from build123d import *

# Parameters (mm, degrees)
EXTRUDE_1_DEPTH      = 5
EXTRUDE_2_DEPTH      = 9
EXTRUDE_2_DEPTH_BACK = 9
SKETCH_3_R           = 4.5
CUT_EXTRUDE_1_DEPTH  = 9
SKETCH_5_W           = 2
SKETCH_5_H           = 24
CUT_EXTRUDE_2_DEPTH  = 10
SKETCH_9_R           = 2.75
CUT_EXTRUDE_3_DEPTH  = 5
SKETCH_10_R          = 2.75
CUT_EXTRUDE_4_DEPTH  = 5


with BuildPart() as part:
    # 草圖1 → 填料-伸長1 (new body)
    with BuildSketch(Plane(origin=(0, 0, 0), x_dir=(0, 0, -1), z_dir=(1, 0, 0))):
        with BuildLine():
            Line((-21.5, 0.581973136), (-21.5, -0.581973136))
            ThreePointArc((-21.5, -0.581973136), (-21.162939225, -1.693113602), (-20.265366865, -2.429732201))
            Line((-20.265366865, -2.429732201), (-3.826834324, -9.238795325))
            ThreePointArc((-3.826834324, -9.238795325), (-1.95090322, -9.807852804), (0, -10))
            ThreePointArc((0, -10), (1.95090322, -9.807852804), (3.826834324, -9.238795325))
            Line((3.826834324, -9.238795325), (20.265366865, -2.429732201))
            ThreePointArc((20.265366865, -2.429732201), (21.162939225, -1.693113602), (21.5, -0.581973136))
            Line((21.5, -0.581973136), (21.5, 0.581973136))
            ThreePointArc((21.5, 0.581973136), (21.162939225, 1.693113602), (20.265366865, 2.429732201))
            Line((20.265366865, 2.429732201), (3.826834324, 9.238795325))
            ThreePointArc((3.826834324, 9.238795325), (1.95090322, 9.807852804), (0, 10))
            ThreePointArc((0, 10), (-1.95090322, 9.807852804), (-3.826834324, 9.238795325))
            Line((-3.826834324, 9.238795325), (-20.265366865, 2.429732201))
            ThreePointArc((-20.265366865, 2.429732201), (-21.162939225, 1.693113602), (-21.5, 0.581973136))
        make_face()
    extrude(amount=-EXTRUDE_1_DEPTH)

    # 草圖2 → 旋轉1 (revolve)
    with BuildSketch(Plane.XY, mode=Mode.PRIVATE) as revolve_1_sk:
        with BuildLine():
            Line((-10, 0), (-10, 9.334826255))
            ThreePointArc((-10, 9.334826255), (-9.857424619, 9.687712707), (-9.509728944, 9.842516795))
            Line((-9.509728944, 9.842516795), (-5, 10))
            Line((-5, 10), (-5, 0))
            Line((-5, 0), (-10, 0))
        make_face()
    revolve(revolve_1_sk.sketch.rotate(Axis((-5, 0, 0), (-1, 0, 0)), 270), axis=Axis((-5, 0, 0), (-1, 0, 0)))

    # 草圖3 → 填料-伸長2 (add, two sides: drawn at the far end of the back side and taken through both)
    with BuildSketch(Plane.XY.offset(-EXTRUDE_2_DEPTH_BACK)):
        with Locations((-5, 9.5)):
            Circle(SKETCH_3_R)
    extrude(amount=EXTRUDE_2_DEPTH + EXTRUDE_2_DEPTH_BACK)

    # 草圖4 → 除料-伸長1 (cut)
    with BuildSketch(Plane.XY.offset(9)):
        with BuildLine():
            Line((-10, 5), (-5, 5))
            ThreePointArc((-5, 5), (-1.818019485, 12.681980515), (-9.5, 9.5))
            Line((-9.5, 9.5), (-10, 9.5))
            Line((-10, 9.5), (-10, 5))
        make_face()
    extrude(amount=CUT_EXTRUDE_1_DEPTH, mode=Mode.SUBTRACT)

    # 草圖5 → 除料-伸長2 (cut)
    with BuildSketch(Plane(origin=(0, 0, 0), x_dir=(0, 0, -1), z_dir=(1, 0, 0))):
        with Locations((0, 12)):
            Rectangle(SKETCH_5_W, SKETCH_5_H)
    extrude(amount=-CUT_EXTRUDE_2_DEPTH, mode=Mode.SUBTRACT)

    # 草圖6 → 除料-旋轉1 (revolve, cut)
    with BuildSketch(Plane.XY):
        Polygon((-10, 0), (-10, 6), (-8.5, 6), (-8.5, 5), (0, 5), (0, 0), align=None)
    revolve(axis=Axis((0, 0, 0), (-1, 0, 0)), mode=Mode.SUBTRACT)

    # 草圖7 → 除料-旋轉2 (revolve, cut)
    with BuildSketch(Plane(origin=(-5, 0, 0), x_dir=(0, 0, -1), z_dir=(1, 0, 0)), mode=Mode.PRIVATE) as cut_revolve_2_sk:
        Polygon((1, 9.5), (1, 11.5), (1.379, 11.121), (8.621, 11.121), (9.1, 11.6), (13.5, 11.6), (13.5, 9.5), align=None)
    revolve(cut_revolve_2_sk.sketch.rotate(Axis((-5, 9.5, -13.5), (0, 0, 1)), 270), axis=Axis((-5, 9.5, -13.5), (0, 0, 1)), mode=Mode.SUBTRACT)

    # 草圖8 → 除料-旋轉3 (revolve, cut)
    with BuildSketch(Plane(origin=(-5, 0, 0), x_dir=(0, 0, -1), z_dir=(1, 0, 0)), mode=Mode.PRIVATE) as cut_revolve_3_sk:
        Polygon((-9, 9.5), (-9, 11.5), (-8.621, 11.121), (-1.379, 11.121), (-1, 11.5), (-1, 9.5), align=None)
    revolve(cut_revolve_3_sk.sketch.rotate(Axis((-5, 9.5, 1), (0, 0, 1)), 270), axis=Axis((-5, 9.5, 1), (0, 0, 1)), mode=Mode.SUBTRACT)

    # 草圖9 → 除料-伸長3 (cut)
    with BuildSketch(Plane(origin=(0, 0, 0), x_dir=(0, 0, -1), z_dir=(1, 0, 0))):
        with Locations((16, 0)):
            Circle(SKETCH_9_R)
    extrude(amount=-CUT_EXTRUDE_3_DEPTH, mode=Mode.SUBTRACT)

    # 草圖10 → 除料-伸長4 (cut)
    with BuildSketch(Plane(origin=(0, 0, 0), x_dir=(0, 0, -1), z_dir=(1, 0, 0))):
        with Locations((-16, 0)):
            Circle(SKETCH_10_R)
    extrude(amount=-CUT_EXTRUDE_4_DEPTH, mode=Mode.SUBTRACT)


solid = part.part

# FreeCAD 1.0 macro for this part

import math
import FreeCAD as App
import Part
import Sketcher
from FreeCAD import Vector
Q = App.Units.Quantity


def add_polygon(sketch, points):
    """Adds a closed chain of lines whose ends are joined by coincident constraints."""
    first, n = sketch.GeometryCount, len(points)
    for a, b in zip(points, points[1:] + points[:1]):
        sketch.addGeometry(Part.LineSegment(App.Vector(*a, 0), App.Vector(*b, 0)), False)
    for i in range(n):
        sketch.addConstraint(Sketcher.Constraint("Coincident", first + i, 2, first + (i + 1) % n, 1))

doc = App.newDocument("Part")
body = doc.addObject("PartDesign::Body", "Body")

# Sketch on YZ plane
sketch1 = body.newObject("Sketcher::SketchObject", "Sketch")
sketch1.AttachmentSupport = (doc.getObject("YZ_Plane"), [""])
sketch1.MapMode = "FlatFace"
sketch1.addGeometry(Part.LineSegment(Vector(0.6, 21.5, 0), Vector(-0.6, 21.5, 0)), False)
sketch1.addGeometry(Part.ArcOfCircle(Part.Circle(Vector(-0.6, 19.5, 0), Vector(0, 0, 1), 2), math.radians(90), math.radians(158)), False)
sketch1.addGeometry(Part.LineSegment(Vector(-2.4, 20.3, 0), Vector(-9.2, 3.8, 0)), False)
sketch1.addGeometry(Part.ArcOfCircle(Part.Circle(Vector(0, 0, 0), Vector(0, 0, 1), 10), math.radians(158), math.radians(180)), False)
sketch1.addGeometry(Part.ArcOfCircle(Part.Circle(Vector(0, 0, 0), Vector(0, 0, 1), 10), math.radians(-180), math.radians(-158)), False)
sketch1.addGeometry(Part.LineSegment(Vector(-9.2, -3.8, 0), Vector(-2.4, -20.3, 0)), False)
sketch1.addGeometry(Part.ArcOfCircle(Part.Circle(Vector(-0.6, -19.5, 0), Vector(0, 0, 1), 2), math.radians(-158), math.radians(-90)), False)
sketch1.addGeometry(Part.LineSegment(Vector(-0.6, -21.5, 0), Vector(0.6, -21.5, 0)), False)
sketch1.addGeometry(Part.ArcOfCircle(Part.Circle(Vector(0.6, -19.5, 0), Vector(0, 0, 1), 2), math.radians(-90), math.radians(-22)), False)
sketch1.addGeometry(Part.LineSegment(Vector(2.4, -20.3, 0), Vector(9.2, -3.8, 0)), False)
sketch1.addGeometry(Part.ArcOfCircle(Part.Circle(Vector(0, 0, 0), Vector(0, 0, 1), 10), math.radians(-22), math.radians(0)), False)
sketch1.addGeometry(Part.ArcOfCircle(Part.Circle(Vector(0, 0, 0), Vector(0, 0, 1), 10), math.radians(0), math.radians(22)), False)
sketch1.addGeometry(Part.LineSegment(Vector(9.2, 3.8, 0), Vector(2.4, 20.3, 0)), False)
sketch1.addGeometry(Part.ArcOfCircle(Part.Circle(Vector(0.6, 19.5, 0), Vector(0, 0, 1), 2), math.radians(22), math.radians(90)), False)
sketch1.addConstraint(Sketcher.Constraint("Tangent", 0, 2, 1, 1))
sketch1.addConstraint(Sketcher.Constraint("Tangent", 1, 2, 2, 1))
sketch1.addConstraint(Sketcher.Constraint("Tangent", 2, 2, 3, 1))
sketch1.addConstraint(Sketcher.Constraint("Tangent", 3, 2, 4, 1))
sketch1.addConstraint(Sketcher.Constraint("Tangent", 4, 2, 5, 1))
sketch1.addConstraint(Sketcher.Constraint("Tangent", 5, 2, 6, 1))
sketch1.addConstraint(Sketcher.Constraint("Tangent", 6, 2, 7, 1))
sketch1.addConstraint(Sketcher.Constraint("Tangent", 7, 2, 8, 1))
sketch1.addConstraint(Sketcher.Constraint("Tangent", 8, 2, 9, 1))
sketch1.addConstraint(Sketcher.Constraint("Tangent", 9, 2, 10, 1))
sketch1.addConstraint(Sketcher.Constraint("Tangent", 10, 2, 11, 1))
sketch1.addConstraint(Sketcher.Constraint("Tangent", 11, 2, 12, 1))
sketch1.addConstraint(Sketcher.Constraint("Tangent", 12, 2, 13, 1))
sketch1.addConstraint(Sketcher.Constraint("Tangent", 13, 2, 0, 1))
sketch1.addConstraint(Sketcher.Constraint("Horizontal", 0))
sketch1.addConstraint(Sketcher.Constraint("Horizontal", 7))
sketch1.addConstraint(Sketcher.Constraint("Coincident", 3, 3, -1, 1))
sketch1.addConstraint(Sketcher.Constraint("Coincident", 10, 3, -1, 1))
sketch1.addConstraint(Sketcher.Constraint("Equal", 3, 4))
sketch1.addConstraint(Sketcher.Constraint("Equal", 1, 6))
sketch1.addConstraint(Sketcher.Constraint("Equal", 6, 8))
sketch1.addConstraint(Sketcher.Constraint("Equal", 4, 10))
sketch1.addConstraint(Sketcher.Constraint("Equal", 10, 11))
sketch1.addConstraint(Sketcher.Constraint("Equal", 8, 13))
sketch1.addConstraint(Sketcher.Constraint("Symmetric", 1, 3, 8, 3, -1, 1))
sketch1.addConstraint(Sketcher.Constraint("PointOnObject", 3, 2, -1))
sketch1.addConstraint(Sketcher.Constraint("PointOnObject", 10, 2, -1))
sketch1.addConstraint(Sketcher.Constraint("Parallel", 5, 12))
sketch1.addConstraint(Sketcher.Constraint("Horizontal", 5, 2, 8, 2))
sketch1.addConstraint(Sketcher.Constraint("Radius", 1, 2.0))
sketch1.addConstraint(Sketcher.Constraint("Radius", 3, 10.0))
sketch1.addConstraint(Sketcher.Constraint("Angle", 2, Q("-112.5 deg")))
sketch1.addConstraint(Sketcher.Constraint("DistanceY", 6, 3, 1, 3, 39.0))
pad1 = body.newObject("PartDesign::Pad", "Pad")
pad1.Profile = sketch1
pad1.Length = 5
pad1.Reversed = True

# Sketch on XY plane
sketch2 = body.newObject("Sketcher::SketchObject", "Sketch001")
sketch2.AttachmentSupport = (doc.getObject("XY_Plane"), [""])
sketch2.MapMode = "FlatFace"
sketch2.addGeometry(Part.LineSegment(Vector(-10, 9.3, 0), Vector(-10, 0, 0)), False)
sketch2.addGeometry(Part.LineSegment(Vector(-10, 0, 0), Vector(-5, 0, 0)), False)
sketch2.addGeometry(Part.LineSegment(Vector(-5, 0, 0), Vector(-5, 10, 0)), False)
sketch2.addGeometry(Part.LineSegment(Vector(-5, 10, 0), Vector(-9.5, 9.8, 0)), False)
sketch2.addGeometry(Part.ArcOfCircle(Part.Circle(Vector(-9.5, 9.3, 0), Vector(0, 0, 1), 0.5), math.radians(92), math.radians(180)), False)
sketch2.addConstraint(Sketcher.Constraint("Coincident", 0, 2, 1, 1))
sketch2.addConstraint(Sketcher.Constraint("Coincident", 1, 2, 2, 1))
sketch2.addConstraint(Sketcher.Constraint("Coincident", 2, 2, 3, 1))
sketch2.addConstraint(Sketcher.Constraint("Tangent", 3, 2, 4, 1))
sketch2.addConstraint(Sketcher.Constraint("Tangent", 4, 2, 0, 1))
sketch2.addConstraint(Sketcher.Constraint("Vertical", 0))
sketch2.addConstraint(Sketcher.Constraint("Horizontal", 1))
sketch2.addConstraint(Sketcher.Constraint("Vertical", 2))
sketch2.addConstraint(Sketcher.Constraint("PointOnObject", 0, 2, -1))
sketch2.addConstraint(Sketcher.Constraint("DistanceX", 1, 1, 1, 2, 5.0))
sketch2.addConstraint(Sketcher.Constraint("DistanceY", 2, 1, 2, 2, 10.0))
sketch2.addConstraint(Sketcher.Constraint("Angle", 3, Q("-178 deg")))
sketch2.addConstraint(Sketcher.Constraint("DistanceX", 0, 2, -1, 1, 10.0))
sketch2.addConstraint(Sketcher.Constraint("Radius", 4, 0.508))
revolution = body.newObject("PartDesign::Revolution", "Revolution")
revolution.Profile = sketch2
revolution.ReferenceAxis = (sketch2, ["H_Axis"])
revolution.Angle = 360

# Sketch on XY plane
sketch3 = body.newObject("Sketcher::SketchObject", "Sketch002")
sketch3.AttachmentSupport = (doc.getObject("XY_Plane"), [""])
sketch3.MapMode = "FlatFace"
sketch3.addGeometry(Part.Circle(Vector(-5, 9.5, 0), Vector(0, 0, 1), 4.5), False)
sketch3.addConstraint(Sketcher.Constraint("Diameter", 0, 9.0))
sketch3.addConstraint(Sketcher.Constraint("DistanceX", 0, 3, -1, 1, 5.0))
sketch3.addConstraint(Sketcher.Constraint("DistanceY", -1, 1, 0, 3, 9.5))
pad2 = body.newObject("PartDesign::Pad", "Pad001")
pad2.Profile = sketch3
pad2.Type = "TwoLengths"
pad2.Length = 9
pad2.Length2 = 9

# Sketch on XY plane
sketch4 = body.newObject("Sketcher::SketchObject", "Sketch003")
sketch4.AttachmentSupport = (doc.getObject("XY_Plane"), [""])
sketch4.MapMode = "FlatFace"
sketch4.AttachmentOffset = App.Placement(Vector(0, 0, 9), App.Rotation())
sketch4.addGeometry(Part.LineSegment(Vector(-10, 5, 0), Vector(-5, 5, 0)), False)
sketch4.addGeometry(Part.ArcOfCircle(Part.Circle(Vector(-5, 9.5, 0), Vector(0, 0, 1), 4.5), math.radians(-90), math.radians(180)), False)
sketch4.addGeometry(Part.LineSegment(Vector(-9.5, 9.5, 0), Vector(-10, 9.5, 0)), False)
sketch4.addGeometry(Part.LineSegment(Vector(-10, 9.5, 0), Vector(-10, 5, 0)), False)
sketch4.addConstraint(Sketcher.Constraint("Tangent", 0, 2, 1, 1))
sketch4.addConstraint(Sketcher.Constraint("Coincident", 1, 2, 2, 1))
sketch4.addConstraint(Sketcher.Constraint("Coincident", 2, 2, 3, 1))
sketch4.addConstraint(Sketcher.Constraint("Coincident", 3, 2, 0, 1))
sketch4.addConstraint(Sketcher.Constraint("Horizontal", 0))
sketch4.addConstraint(Sketcher.Constraint("Horizontal", 2))
sketch4.addConstraint(Sketcher.Constraint("Vertical", 3))
sketch4.addConstraint(Sketcher.Constraint("Radius", 1, 4.5))
sketch4.addConstraint(Sketcher.Constraint("DistanceX", 0, 1, 0, 2, 5.0))
sketch4.addConstraint(Sketcher.Constraint("DistanceY", 3, 2, 3, 1, 4.5))
sketch4.addConstraint(Sketcher.Constraint("DistanceX", 1, 3, -1, 1, 5.0))
sketch4.addConstraint(Sketcher.Constraint("DistanceY", -1, 1, 0, 2, 5.0))
pocket1 = body.newObject("PartDesign::Pocket", "Pocket")
pocket1.Profile = sketch4
pocket1.Length = 9
pocket1.Reversed = True

# Sketch on YZ plane
sketch5 = body.newObject("Sketcher::SketchObject", "Sketch004")
sketch5.AttachmentSupport = (doc.getObject("YZ_Plane"), [""])
sketch5.MapMode = "FlatFace"
add_polygon(sketch5, [(24, 1), (0, 1), (0, -1), (24, -1)])  # lines 0-3
sketch5.addConstraint(Sketcher.Constraint("Horizontal", 0))
sketch5.addConstraint(Sketcher.Constraint("Vertical", 1))
sketch5.addConstraint(Sketcher.Constraint("Horizontal", 2))
sketch5.addConstraint(Sketcher.Constraint("Vertical", 3))
sketch5.addConstraint(Sketcher.Constraint("Symmetric", 0, 2, 1, 2, -1, 1))
sketch5.addConstraint(Sketcher.Constraint("DistanceX", 0, 2, 0, 1, 24.0))
sketch5.addConstraint(Sketcher.Constraint("DistanceY", 1, 2, 1, 1, 2.0))
pocket2 = body.newObject("PartDesign::Pocket", "Pocket001")
pocket2.Profile = sketch5
pocket2.Length = 10

# Sketch on XY plane
sketch6 = body.newObject("Sketcher::SketchObject", "Sketch005")
sketch6.AttachmentSupport = (doc.getObject("XY_Plane"), [""])
sketch6.MapMode = "FlatFace"
add_polygon(sketch6, [(-10, 6), (-10, 0), (0, 0), (0, 5), (-8.5, 5), (-8.5, 6)])  # lines 0-5
sketch6.addConstraint(Sketcher.Constraint("Vertical", 0))
sketch6.addConstraint(Sketcher.Constraint("Horizontal", 1))
sketch6.addConstraint(Sketcher.Constraint("Vertical", 2))
sketch6.addConstraint(Sketcher.Constraint("Horizontal", 3))
sketch6.addConstraint(Sketcher.Constraint("Vertical", 4))
sketch6.addConstraint(Sketcher.Constraint("Horizontal", 5))
sketch6.addConstraint(Sketcher.Constraint("Coincident", 1, 2, -1, 1))
sketch6.addConstraint(Sketcher.Constraint("DistanceX", 1, 1, 1, 2, 10.0))
sketch6.addConstraint(Sketcher.Constraint("DistanceY", 0, 2, 0, 1, 6.0))
sketch6.addConstraint(Sketcher.Constraint("DistanceY", 2, 1, 2, 2, 5.0))
sketch6.addConstraint(Sketcher.Constraint("DistanceX", 3, 2, 3, 1, 8.5))
groove = body.newObject("PartDesign::Groove", "Groove")
groove.Profile = sketch6
groove.ReferenceAxis = (sketch6, ["H_Axis"])
groove.Angle = 360

# Sketch on YZ plane
sketch7 = body.newObject("Sketcher::SketchObject", "Sketch006")
sketch7.AttachmentSupport = (doc.getObject("YZ_Plane"), [""])
sketch7.MapMode = "FlatFace"
sketch7.AttachmentOffset = App.Placement(Vector(0, 0, -5), App.Rotation())
add_polygon(sketch7, [(11.5, -1), (9.5, -1), (9.5, -13.5), (11.6, -13.5), (11.6, -9.1), (11.1, -8.6), (11.1, -1.4)])  # lines 0-6
sketch7.addGeometry(Part.LineSegment(Vector(9.5, -13.5, 0), Vector(9.5, -1, 0)), True)  # axis
sketch7.addConstraint(Sketcher.Constraint("Horizontal", 0))
sketch7.addConstraint(Sketcher.Constraint("Vertical", 1))
sketch7.addConstraint(Sketcher.Constraint("Horizontal", 2))
sketch7.addConstraint(Sketcher.Constraint("Vertical", 3))
sketch7.addConstraint(Sketcher.Constraint("Vertical", 5))
sketch7.addConstraint(Sketcher.Constraint("Vertical", 7))
sketch7.addConstraint(Sketcher.Constraint("Coincident", 7, 1, 1, 2))
sketch7.addConstraint(Sketcher.Constraint("Perpendicular", 4, 6))
sketch7.addConstraint(Sketcher.Constraint("Horizontal", 6, 2, 7, 2))
sketch7.addConstraint(Sketcher.Constraint("DistanceX", 0, 2, 0, 1, 2.0))
sketch7.addConstraint(Sketcher.Constraint("Angle", 4, Q("135 deg")))
sketch7.addConstraint(Sketcher.Constraint("DistanceX", 2, 1, 2, 2, 2.1))
sketch7.addConstraint(Sketcher.Constraint("DistanceY", 1, 2, 1, 1, 12.5))
sketch7.addConstraint(Sketcher.Constraint("DistanceY", 3, 1, 3, 2, 4.4))
sketch7.addConstraint(Sketcher.Constraint("DistanceY", 0, 2, -1, 1, 1.0))
sketch7.addConstraint(Sketcher.Constraint("DistanceX", -1, 1, 0, 2, 9.5))
sketch7.addConstraint(Sketcher.Constraint("DistanceY", 5, 1, 5, 2, 7.242))
groove2 = body.newObject("PartDesign::Groove", "Groove001")
groove2.Profile = sketch7
groove2.ReferenceAxis = (sketch7, ["Axis0"])
groove2.Angle = 360

# Sketch on YZ plane
sketch8 = body.newObject("Sketcher::SketchObject", "Sketch007")
sketch8.AttachmentSupport = (doc.getObject("YZ_Plane"), [""])
sketch8.MapMode = "FlatFace"
sketch8.AttachmentOffset = App.Placement(Vector(0, 0, -5), App.Rotation())
add_polygon(sketch8, [(11.5, 9), (9.5, 9), (9.5, 1), (11.5, 1), (11.1, 1.4), (11.1, 8.6)])  # lines 0-5
sketch8.addGeometry(Part.LineSegment(Vector(9.5, 1, 0), Vector(9.5, 9, 0)), True)  # axis
sketch8.addConstraint(Sketcher.Constraint("Horizontal", 0))
sketch8.addConstraint(Sketcher.Constraint("Vertical", 1))
sketch8.addConstraint(Sketcher.Constraint("Horizontal", 2))
sketch8.addConstraint(Sketcher.Constraint("Vertical", 4))
sketch8.addConstraint(Sketcher.Constraint("Vertical", 6))
sketch8.addConstraint(Sketcher.Constraint("Coincident", 6, 1, 1, 2))
sketch8.addConstraint(Sketcher.Constraint("Perpendicular", 3, 5))
sketch8.addConstraint(Sketcher.Constraint("Horizontal", 5, 2, 6, 2))
sketch8.addConstraint(Sketcher.Constraint("Vertical", 2, 2, 5, 2))
sketch8.addConstraint(Sketcher.Constraint("Equal", 3, 5))
sketch8.addConstraint(Sketcher.Constraint("DistanceX", 0, 2, 0, 1, 2.0))
sketch8.addConstraint(Sketcher.Constraint("DistanceY", 1, 2, 1, 1, 8.0))
sketch8.addConstraint(Sketcher.Constraint("DistanceY", -1, 1, 0, 2, 9.0))
sketch8.addConstraint(Sketcher.Constraint("DistanceX", -1, 1, 0, 2, 9.5))
sketch8.addConstraint(Sketcher.Constraint("DistanceY", 4, 1, 4, 2, 7.242))
groove3 = body.newObject("PartDesign::Groove", "Groove002")
groove3.Profile = sketch8
groove3.ReferenceAxis = (sketch8, ["Axis0"])
groove3.Angle = 360

# Sketch on YZ plane
sketch9 = body.newObject("Sketcher::SketchObject", "Sketch008")
sketch9.AttachmentSupport = (doc.getObject("YZ_Plane"), [""])
sketch9.MapMode = "FlatFace"
sketch9.addGeometry(Part.Circle(Vector(0, -16, 0), Vector(0, 0, 1), 2.8), False)
sketch9.addConstraint(Sketcher.Constraint("PointOnObject", 0, 3, -2))
sketch9.addConstraint(Sketcher.Constraint("Diameter", 0, 5.5))
sketch9.addConstraint(Sketcher.Constraint("DistanceY", 0, 3, -1, 1, 16.0))
pocket3 = body.newObject("PartDesign::Pocket", "Pocket002")
pocket3.Profile = sketch9
pocket3.Length = 5

# Sketch on YZ plane
sketch10 = body.newObject("Sketcher::SketchObject", "Sketch009")
sketch10.AttachmentSupport = (doc.getObject("YZ_Plane"), [""])
sketch10.MapMode = "FlatFace"
sketch10.addGeometry(Part.Circle(Vector(0, 16, 0), Vector(0, 0, 1), 2.8), False)
sketch10.addConstraint(Sketcher.Constraint("PointOnObject", 0, 3, -2))
sketch10.addConstraint(Sketcher.Constraint("Diameter", 0, 5.5))
sketch10.addConstraint(Sketcher.Constraint("DistanceY", -1, 1, 0, 3, 16.0))
pocket4 = body.newObject("PartDesign::Pocket", "Pocket003")
pocket4.Profile = sketch10
pocket4.Length = 5

doc.recompute()
